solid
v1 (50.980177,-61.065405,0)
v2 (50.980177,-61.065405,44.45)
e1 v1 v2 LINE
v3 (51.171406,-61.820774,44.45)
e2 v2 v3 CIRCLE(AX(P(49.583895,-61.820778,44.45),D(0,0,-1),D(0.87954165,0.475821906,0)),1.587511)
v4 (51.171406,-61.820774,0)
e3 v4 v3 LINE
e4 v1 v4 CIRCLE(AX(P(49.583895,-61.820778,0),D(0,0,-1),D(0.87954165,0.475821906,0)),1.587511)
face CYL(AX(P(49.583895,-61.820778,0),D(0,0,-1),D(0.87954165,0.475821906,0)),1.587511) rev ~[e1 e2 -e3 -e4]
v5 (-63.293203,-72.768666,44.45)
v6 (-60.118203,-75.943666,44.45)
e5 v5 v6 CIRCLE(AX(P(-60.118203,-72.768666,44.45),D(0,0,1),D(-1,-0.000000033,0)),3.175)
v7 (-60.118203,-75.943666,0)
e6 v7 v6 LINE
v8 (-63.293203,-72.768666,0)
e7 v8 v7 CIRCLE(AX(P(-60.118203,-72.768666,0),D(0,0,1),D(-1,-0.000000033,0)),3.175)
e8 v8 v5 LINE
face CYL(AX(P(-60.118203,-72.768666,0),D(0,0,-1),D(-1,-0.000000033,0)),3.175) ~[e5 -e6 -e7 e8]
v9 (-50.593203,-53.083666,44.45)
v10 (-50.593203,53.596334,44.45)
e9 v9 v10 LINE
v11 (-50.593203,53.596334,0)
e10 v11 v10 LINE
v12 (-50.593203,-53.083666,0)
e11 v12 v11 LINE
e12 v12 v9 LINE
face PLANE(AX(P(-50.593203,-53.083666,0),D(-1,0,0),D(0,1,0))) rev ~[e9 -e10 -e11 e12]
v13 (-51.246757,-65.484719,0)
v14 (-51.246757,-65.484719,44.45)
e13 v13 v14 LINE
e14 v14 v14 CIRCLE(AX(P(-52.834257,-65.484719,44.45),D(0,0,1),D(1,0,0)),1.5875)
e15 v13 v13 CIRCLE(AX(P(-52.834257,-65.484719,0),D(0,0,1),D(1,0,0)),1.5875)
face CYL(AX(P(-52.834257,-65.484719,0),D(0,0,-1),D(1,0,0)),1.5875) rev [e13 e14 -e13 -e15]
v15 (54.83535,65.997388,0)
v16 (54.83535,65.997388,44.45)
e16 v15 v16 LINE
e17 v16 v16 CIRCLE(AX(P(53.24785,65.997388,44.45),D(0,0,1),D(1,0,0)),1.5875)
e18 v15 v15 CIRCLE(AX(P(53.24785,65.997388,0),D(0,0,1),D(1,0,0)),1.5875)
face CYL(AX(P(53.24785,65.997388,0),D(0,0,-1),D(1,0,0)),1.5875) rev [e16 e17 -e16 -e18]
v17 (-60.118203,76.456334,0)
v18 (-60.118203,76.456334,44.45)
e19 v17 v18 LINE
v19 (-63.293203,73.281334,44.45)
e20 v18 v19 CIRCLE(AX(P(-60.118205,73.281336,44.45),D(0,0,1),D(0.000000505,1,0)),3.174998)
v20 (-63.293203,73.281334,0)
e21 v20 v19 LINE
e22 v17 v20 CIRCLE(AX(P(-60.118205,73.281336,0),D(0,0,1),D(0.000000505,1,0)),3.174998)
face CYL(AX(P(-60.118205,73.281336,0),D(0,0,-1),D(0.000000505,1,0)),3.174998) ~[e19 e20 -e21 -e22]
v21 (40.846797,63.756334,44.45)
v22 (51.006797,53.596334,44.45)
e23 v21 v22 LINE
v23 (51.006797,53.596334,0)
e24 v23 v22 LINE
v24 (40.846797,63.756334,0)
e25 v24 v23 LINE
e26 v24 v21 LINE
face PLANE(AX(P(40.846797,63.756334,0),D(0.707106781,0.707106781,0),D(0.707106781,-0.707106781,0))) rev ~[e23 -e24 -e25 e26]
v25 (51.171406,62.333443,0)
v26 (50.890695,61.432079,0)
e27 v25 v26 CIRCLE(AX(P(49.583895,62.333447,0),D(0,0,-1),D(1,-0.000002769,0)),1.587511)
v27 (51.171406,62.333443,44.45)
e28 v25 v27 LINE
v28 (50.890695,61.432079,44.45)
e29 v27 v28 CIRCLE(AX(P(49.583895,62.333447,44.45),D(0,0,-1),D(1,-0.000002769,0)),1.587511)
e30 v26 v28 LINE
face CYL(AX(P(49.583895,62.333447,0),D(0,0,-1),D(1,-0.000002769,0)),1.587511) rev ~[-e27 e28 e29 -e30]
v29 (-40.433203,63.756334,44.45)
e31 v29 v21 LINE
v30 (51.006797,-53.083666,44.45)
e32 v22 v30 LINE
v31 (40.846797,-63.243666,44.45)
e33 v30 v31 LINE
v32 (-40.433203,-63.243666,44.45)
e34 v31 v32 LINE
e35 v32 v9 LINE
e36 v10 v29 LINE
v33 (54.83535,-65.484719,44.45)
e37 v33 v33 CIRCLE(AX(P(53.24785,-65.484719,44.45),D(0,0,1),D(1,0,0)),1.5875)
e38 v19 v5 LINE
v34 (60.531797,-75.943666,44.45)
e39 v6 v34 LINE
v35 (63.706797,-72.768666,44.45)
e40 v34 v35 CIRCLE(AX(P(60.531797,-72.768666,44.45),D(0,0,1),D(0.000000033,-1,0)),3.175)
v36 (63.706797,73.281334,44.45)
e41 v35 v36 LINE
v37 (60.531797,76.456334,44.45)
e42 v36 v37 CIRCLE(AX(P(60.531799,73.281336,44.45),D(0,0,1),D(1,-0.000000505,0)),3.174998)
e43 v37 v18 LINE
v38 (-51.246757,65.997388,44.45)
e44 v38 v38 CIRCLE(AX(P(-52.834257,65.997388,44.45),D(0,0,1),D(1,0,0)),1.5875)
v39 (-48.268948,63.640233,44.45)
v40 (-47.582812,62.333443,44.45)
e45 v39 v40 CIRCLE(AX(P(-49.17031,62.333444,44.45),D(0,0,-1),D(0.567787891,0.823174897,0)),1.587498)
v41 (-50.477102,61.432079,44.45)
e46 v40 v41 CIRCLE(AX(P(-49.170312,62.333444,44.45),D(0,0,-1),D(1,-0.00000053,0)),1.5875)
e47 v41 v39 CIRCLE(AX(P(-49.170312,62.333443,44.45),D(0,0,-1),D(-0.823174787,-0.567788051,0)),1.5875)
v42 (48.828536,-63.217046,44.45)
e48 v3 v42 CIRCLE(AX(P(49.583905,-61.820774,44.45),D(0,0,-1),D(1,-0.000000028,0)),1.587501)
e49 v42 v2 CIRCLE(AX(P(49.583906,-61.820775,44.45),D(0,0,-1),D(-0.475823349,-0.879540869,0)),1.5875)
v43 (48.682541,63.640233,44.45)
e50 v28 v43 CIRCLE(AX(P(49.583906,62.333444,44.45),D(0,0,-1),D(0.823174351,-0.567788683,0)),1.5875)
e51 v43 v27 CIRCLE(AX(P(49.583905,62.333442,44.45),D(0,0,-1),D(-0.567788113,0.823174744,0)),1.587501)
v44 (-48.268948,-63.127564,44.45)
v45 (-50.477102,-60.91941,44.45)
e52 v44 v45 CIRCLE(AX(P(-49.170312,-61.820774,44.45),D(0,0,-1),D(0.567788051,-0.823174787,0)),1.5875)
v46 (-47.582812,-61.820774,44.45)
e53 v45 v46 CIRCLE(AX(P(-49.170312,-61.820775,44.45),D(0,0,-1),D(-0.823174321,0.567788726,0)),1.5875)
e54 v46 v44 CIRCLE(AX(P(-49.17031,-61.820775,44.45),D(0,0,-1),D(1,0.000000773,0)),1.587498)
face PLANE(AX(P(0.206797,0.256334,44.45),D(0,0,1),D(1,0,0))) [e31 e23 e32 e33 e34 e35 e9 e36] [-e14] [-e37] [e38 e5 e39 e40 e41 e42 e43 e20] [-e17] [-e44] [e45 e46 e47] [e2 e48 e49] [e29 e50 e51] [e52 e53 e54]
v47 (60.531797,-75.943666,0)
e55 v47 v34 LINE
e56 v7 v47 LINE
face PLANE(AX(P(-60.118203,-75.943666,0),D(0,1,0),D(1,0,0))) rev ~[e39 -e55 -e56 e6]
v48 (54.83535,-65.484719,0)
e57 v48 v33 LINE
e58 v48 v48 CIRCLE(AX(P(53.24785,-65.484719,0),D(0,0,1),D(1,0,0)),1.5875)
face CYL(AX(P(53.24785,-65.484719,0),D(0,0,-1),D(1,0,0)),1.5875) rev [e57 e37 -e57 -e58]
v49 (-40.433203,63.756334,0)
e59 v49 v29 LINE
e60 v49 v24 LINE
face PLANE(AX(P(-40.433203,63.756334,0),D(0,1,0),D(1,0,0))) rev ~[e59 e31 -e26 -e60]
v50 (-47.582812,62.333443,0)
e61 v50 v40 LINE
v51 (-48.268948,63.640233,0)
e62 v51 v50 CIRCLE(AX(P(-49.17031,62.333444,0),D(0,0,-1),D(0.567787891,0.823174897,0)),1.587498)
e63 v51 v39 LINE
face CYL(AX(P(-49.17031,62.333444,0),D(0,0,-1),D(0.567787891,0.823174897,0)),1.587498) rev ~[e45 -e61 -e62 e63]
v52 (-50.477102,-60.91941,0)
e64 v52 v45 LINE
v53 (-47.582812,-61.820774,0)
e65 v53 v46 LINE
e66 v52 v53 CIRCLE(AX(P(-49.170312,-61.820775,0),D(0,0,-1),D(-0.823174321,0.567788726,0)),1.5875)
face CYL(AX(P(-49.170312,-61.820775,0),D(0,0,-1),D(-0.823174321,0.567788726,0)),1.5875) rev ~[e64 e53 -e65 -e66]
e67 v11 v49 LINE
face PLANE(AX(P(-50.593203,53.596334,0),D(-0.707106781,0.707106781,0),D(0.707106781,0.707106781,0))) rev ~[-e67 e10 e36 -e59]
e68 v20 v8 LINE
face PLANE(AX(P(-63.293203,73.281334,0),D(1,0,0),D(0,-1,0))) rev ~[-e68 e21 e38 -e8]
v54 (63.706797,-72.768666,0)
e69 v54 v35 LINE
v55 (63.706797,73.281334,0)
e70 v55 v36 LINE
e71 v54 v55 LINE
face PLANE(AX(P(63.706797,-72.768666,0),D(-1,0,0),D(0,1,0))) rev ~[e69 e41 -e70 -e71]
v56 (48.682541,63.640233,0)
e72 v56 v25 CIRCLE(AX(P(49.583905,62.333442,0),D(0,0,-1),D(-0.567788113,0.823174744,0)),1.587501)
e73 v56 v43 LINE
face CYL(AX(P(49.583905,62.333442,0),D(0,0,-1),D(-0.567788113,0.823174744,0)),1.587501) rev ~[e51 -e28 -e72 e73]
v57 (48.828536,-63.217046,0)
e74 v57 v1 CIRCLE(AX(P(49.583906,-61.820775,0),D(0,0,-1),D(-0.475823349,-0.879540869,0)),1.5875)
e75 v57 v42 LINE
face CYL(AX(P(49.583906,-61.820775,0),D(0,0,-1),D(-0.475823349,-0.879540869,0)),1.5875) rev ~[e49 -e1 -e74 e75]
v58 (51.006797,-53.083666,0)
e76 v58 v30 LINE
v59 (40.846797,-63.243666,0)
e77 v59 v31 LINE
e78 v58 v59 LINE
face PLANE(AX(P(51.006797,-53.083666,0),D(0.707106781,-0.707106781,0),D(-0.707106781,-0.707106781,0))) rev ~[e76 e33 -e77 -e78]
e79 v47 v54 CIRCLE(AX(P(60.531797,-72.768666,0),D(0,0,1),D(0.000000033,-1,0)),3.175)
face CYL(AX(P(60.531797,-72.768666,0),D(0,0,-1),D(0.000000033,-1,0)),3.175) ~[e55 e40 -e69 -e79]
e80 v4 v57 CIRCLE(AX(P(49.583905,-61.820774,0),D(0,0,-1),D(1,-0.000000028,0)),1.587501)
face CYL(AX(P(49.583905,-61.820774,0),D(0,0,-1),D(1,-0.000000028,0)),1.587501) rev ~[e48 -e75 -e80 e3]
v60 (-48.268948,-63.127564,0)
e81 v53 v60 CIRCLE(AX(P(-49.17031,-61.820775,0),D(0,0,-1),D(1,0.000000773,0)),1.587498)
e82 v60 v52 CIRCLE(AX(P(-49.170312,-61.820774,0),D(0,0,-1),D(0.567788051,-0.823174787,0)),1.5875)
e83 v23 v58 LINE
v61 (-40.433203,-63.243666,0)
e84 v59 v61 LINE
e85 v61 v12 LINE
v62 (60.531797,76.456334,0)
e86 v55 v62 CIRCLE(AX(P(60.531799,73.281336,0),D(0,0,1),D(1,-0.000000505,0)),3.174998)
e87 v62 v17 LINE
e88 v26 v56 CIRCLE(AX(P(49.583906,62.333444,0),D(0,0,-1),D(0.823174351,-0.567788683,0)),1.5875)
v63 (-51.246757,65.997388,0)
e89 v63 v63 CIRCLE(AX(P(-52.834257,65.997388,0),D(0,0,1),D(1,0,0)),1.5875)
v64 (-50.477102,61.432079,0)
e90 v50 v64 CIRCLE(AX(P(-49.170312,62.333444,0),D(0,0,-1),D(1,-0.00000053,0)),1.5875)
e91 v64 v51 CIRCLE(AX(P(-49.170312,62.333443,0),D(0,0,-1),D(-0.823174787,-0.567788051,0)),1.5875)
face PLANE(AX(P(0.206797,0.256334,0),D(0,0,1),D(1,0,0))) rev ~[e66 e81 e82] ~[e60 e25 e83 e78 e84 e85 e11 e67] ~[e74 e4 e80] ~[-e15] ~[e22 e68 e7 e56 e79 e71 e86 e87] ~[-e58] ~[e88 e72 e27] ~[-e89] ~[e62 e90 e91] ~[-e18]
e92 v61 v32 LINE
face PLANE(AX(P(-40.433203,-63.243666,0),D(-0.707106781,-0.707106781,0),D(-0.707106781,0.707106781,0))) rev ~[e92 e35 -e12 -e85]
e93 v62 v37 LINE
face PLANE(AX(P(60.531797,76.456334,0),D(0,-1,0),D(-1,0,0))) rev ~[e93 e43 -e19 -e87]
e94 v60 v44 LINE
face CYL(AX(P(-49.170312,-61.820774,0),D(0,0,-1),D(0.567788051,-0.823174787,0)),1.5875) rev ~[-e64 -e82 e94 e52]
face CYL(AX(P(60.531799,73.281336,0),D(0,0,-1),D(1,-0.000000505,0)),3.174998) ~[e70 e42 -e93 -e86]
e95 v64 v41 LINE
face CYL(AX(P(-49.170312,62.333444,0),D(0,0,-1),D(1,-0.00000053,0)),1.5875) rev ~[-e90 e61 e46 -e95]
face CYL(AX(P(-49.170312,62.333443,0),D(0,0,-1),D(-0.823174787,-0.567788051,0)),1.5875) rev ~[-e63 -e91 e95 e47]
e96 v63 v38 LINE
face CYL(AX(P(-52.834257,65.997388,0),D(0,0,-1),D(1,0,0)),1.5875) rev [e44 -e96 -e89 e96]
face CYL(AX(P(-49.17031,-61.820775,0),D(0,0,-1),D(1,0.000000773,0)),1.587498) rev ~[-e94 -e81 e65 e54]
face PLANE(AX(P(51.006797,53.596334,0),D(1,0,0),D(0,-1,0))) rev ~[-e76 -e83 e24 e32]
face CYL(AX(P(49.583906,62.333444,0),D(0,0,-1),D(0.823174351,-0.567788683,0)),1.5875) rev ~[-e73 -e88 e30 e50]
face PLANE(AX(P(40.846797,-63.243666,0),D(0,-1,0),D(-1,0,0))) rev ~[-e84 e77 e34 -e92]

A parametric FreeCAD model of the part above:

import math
import FreeCAD as App
import Part
import Sketcher
Q = App.Units.Quantity


def add_polygon(sketch, points):
    """Adds a closed chain of lines whose ends are joined by coincident constraints."""
    first, n = sketch.GeometryCount, len(points)
    for a, b in zip(points, points[1:] + points[:1]):
        sketch.addGeometry(Part.LineSegment(App.Vector(*a, 0), App.Vector(*b, 0)), False)
    for i in range(n):
        sketch.addConstraint(Sketcher.Constraint("Coincident", first + i, 2, first + (i + 1) % n, 1))

doc = App.newDocument("Part")
body = doc.addObject("PartDesign::Body", "Body")

sketch1 = body.newObject("Sketcher::SketchObject", "Sketch")
sketch1.AttachmentSupport = (doc.getObject("XY_Plane"), [""])
sketch1.MapMode = "FlatFace"
sketch1.addGeometry(Part.LineSegment(App.Vector(60.5, 76.5, 0), App.Vector(-60.1, 76.5, 0)), False)
sketch1.addGeometry(Part.ArcOfCircle(Part.Circle(App.Vector(-60.1, 73.3, 0), App.Vector(0, 0, 1), 3.2), math.radians(90), math.radians(180)), False)
sketch1.addGeometry(Part.LineSegment(App.Vector(-63.3, 73.3, 0), App.Vector(-63.3, -72.8, 0)), False)
sketch1.addGeometry(Part.ArcOfCircle(Part.Circle(App.Vector(-60.1, -72.8, 0), App.Vector(0, 0, 1), 3.2), math.radians(-180), math.radians(-90)), False)
sketch1.addGeometry(Part.LineSegment(App.Vector(-60.1, -75.9, 0), App.Vector(60.5, -75.9, 0)), False)
sketch1.addGeometry(Part.ArcOfCircle(Part.Circle(App.Vector(60.5, -72.8, 0), App.Vector(0, 0, 1), 3.2), math.radians(-90), math.radians(0)), False)
sketch1.addGeometry(Part.LineSegment(App.Vector(63.7, -72.8, 0), App.Vector(63.7, 73.3, 0)), False)
sketch1.addGeometry(Part.ArcOfCircle(Part.Circle(App.Vector(60.5, 73.3, 0), App.Vector(0, 0, 1), 3.2), math.radians(0), math.radians(90)), False)
sketch1.addGeometry(Part.Circle(App.Vector(-52.8, -65.5, 0), App.Vector(0, 0, 1), 1.6), False)
sketch1.addGeometry(Part.Circle(App.Vector(53.2, -65.5, 0), App.Vector(0, 0, 1), 1.6), False)
sketch1.addGeometry(Part.ArcOfCircle(Part.Circle(App.Vector(-49.2, 62.3, 0), App.Vector(0, 0, 1), 1.6), math.radians(55), math.radians(215)), False)
sketch1.addGeometry(Part.ArcOfCircle(Part.Circle(App.Vector(-49.2, 62.3, 0), App.Vector(0, 0, 1), 1.6), math.radians(0), math.radians(55)), False)
sketch1.addGeometry(Part.ArcOfCircle(Part.Circle(App.Vector(-49.2, 62.3, 0), App.Vector(0, 0, 1), 1.6), math.radians(-145), math.radians(0)), False)
add_polygon(sketch1, [(-50.6, -53.1), (-50.6, 53.6), (-40.4, 63.8), (40.8, 63.8), (51, 53.6), (51, -53.1), (40.8, -63.2), (-40.4, -63.2)])
sketch1.addGeometry(Part.ArcOfCircle(Part.Circle(App.Vector(-49.2, -61.8, 0), App.Vector(0, 0, 1), 1.6), math.radians(145), math.radians(305)), False)
sketch1.addGeometry(Part.ArcOfCircle(Part.Circle(App.Vector(-49.2, -61.8, 0), App.Vector(0, 0, 1), 1.6), math.radians(0), math.radians(145)), False)
sketch1.addGeometry(Part.ArcOfCircle(Part.Circle(App.Vector(-49.2, -61.8, 0), App.Vector(0, 0, 1), 1.6), math.radians(-55), math.radians(0)), False)
sketch1.addGeometry(Part.ArcOfCircle(Part.Circle(App.Vector(49.6, -61.8, 0), App.Vector(0, 0, 1), 1.6), math.radians(0), math.radians(28)), False)
sketch1.addGeometry(Part.ArcOfCircle(Part.Circle(App.Vector(49.6, -61.8, 0), App.Vector(0, 0, 1), 1.6), math.radians(-118), math.radians(0)), False)
sketch1.addGeometry(Part.ArcOfCircle(Part.Circle(App.Vector(49.6, -61.8, 0), App.Vector(0, 0, 1), 1.6), math.radians(28), math.radians(242)), False)
sketch1.addGeometry(Part.ArcOfCircle(Part.Circle(App.Vector(49.6, 62.3, 0), App.Vector(0, 0, 1), 1.6), math.radians(0), math.radians(125)), False)
sketch1.addGeometry(Part.ArcOfCircle(Part.Circle(App.Vector(49.6, 62.3, 0), App.Vector(0, 0, 1), 1.6), math.radians(-35), math.radians(0)), False)
sketch1.addGeometry(Part.ArcOfCircle(Part.Circle(App.Vector(49.6, 62.3, 0), App.Vector(0, 0, 1), 1.6), math.radians(125), math.radians(325)), False)
sketch1.addGeometry(Part.Circle(App.Vector(-52.8, 66, 0), App.Vector(0, 0, 1), 1.6), False)
sketch1.addGeometry(Part.Circle(App.Vector(53.2, 66, 0), App.Vector(0, 0, 1), 1.6), False)
sketch1.addConstraint(Sketcher.Constraint("Tangent", 0, 2, 1, 1))
sketch1.addConstraint(Sketcher.Constraint("Tangent", 1, 2, 2, 1))
sketch1.addConstraint(Sketcher.Constraint("Tangent", 2, 2, 3, 1))
sketch1.addConstraint(Sketcher.Constraint("Tangent", 3, 2, 4, 1))
sketch1.addConstraint(Sketcher.Constraint("Tangent", 4, 2, 5, 1))
sketch1.addConstraint(Sketcher.Constraint("Tangent", 5, 2, 6, 1))
sketch1.addConstraint(Sketcher.Constraint("Tangent", 6, 2, 7, 1))
sketch1.addConstraint(Sketcher.Constraint("Tangent", 7, 2, 0, 1))
sketch1.addConstraint(Sketcher.Constraint("Tangent", 10, 1, 11, 2))
sketch1.addConstraint(Sketcher.Constraint("Tangent", 11, 1, 12, 2))
sketch1.addConstraint(Sketcher.Constraint("Tangent", 12, 1, 10, 2))
sketch1.addConstraint(Sketcher.Constraint("Tangent", 21, 1, 22, 2))
sketch1.addConstraint(Sketcher.Constraint("Tangent", 22, 1, 23, 2))
sketch1.addConstraint(Sketcher.Constraint("Tangent", 23, 1, 21, 2))
sketch1.addConstraint(Sketcher.Constraint("Coincident", 24, 1, 25, 2))
sketch1.addConstraint(Sketcher.Constraint("Tangent", 25, 1, 26, 2))
sketch1.addConstraint(Sketcher.Constraint("Tangent", 26, 1, 24, 2))
sketch1.addConstraint(Sketcher.Constraint("Coincident", 27, 1, 28, 2))
sketch1.addConstraint(Sketcher.Constraint("Tangent", 28, 1, 29, 2))
sketch1.addConstraint(Sketcher.Constraint("Tangent", 29, 1, 27, 2))
sketch1.addConstraint(Sketcher.Constraint("Horizontal", 0))
sketch1.addConstraint(Sketcher.Constraint("Vertical", 2))
sketch1.addConstraint(Sketcher.Constraint("Horizontal", 4))
sketch1.addConstraint(Sketcher.Constraint("Vertical", 6))
sketch1.addConstraint(Sketcher.Constraint("Vertical", 13))
sketch1.addConstraint(Sketcher.Constraint("Horizontal", 15))
sketch1.addConstraint(Sketcher.Constraint("Vertical", 17))
sketch1.addConstraint(Sketcher.Constraint("Horizontal", 19))
sketch1.addConstraint(Sketcher.Constraint("Equal", 1, 3))
sketch1.addConstraint(Sketcher.Constraint("Equal", 3, 5))
sketch1.addConstraint(Sketcher.Constraint("Equal", 5, 7))
sketch1.addConstraint(Sketcher.Constraint("Equal", 8, 9))
sketch1.addConstraint(Sketcher.Constraint("Equal", 9, 10))
sketch1.addConstraint(Sketcher.Constraint("Equal", 12, 21))
sketch1.addConstraint(Sketcher.Constraint("Equal", 22, 25))
sketch1.addConstraint(Sketcher.Constraint("Equal", 25, 26))
sketch1.addConstraint(Sketcher.Constraint("Equal", 26, 27))
sketch1.addConstraint(Sketcher.Constraint("Equal", 24, 28))
sketch1.addConstraint(Sketcher.Constraint("Equal", 29, 30))
sketch1.addConstraint(Sketcher.Constraint("Equal", 30, 31))
sketch1.addConstraint(Sketcher.Constraint("Perpendicular", 14, 16))
sketch1.addConstraint(Sketcher.Constraint("Perpendicular", 16, 18))
sketch1.addConstraint(Sketcher.Constraint("Perpendicular", 18, 20))
sketch1.addConstraint(Sketcher.Constraint("Horizontal", 8, 3, 9, 3))
sketch1.addConstraint(Sketcher.Constraint("Horizontal", 23, 3, 25, 3))
sketch1.addConstraint(Sketcher.Constraint("Horizontal", 12, 3, 27, 3))
sketch1.addConstraint(Sketcher.Constraint("Horizontal", 30, 3, 31, 3))
sketch1.addConstraint(Sketcher.Constraint("Horizontal", 29, 3, 11, 1))
sketch1.addConstraint(Sketcher.Constraint("Horizontal", 13, 2, 16, 2))
sketch1.addConstraint(Sketcher.Constraint("Horizontal", 17, 2, 20, 2))
sketch1.addConstraint(Sketcher.Constraint("Horizontal", 26, 3, 22, 1))
sketch1.addConstraint(Sketcher.Constraint("Horizontal", 22, 1, 24, 1))
sketch1.addConstraint(Sketcher.Constraint("Horizontal", 11, 1, 27, 1))
sketch1.addConstraint(Sketcher.Constraint("Horizontal", 12, 1, 28, 1))
sketch1.addConstraint(Sketcher.Constraint("Horizontal", 10, 1, 29, 1))
sketch1.addConstraint(Sketcher.Constraint("Vertical", 12, 3, 21, 3))
sketch1.addConstraint(Sketcher.Constraint("Vertical", 26, 3, 27, 3))
sketch1.addConstraint(Sketcher.Constraint("Vertical", 8, 3, 30, 3))
sketch1.addConstraint(Sketcher.Constraint("Vertical", 9, 3, 31, 3))
sketch1.addConstraint(Sketcher.Constraint("Vertical", 15, 2, 18, 2))
sketch1.addConstraint(Sketcher.Constraint("Vertical", 14, 2, 19, 2))
sketch1.addConstraint(Sketcher.Constraint("Vertical", 12, 1, 21, 1))
sketch1.addConstraint(Sketcher.Constraint("Vertical", 10, 1, 23, 1))
sketch1.addConstraint(Sketcher.Constraint("Diameter", 8, Q("0.125 in")))
sketch1.addConstraint(Sketcher.Constraint("DistanceX", 15, 1, 15, 2, Q("3.2 in")))
sketch1.addConstraint(Sketcher.Constraint("DistanceY", 13, 1, 13, 2, Q("4.2 in")))
sketch1.addConstraint(Sketcher.Constraint("Radius", 1, Q("0.1249999 in")))
sketch1.addConstraint(Sketcher.Constraint("DistanceX", 0, 2, 0, 1, Q("4.75 in")))
sketch1.addConstraint(Sketcher.Constraint("DistanceY", 2, 2, 2, 1, Q("5.75 in")))
sketch1.addConstraint(Sketcher.Constraint("DistanceX", 15, 2, 16, 2, Q("0.4 in")))
sketch1.addConstraint(Sketcher.Constraint("DistanceX", 15, 2, 7, 3, Q("0.7750001 in")))
sketch1.addConstraint(Sketcher.Constraint("DistanceY", 15, 2, 7, 3, Q("0.3750001 in")))
sketch1.addConstraint(Sketcher.Constraint("DistanceX", -1, 1, 7, 3, Q("60.531799 mm")))
sketch1.addConstraint(Sketcher.Constraint("DistanceX", 21, 1, -1, 1, Q("50.477102 mm")))
sketch1.addConstraint(Sketcher.Constraint("DistanceY", 10, 1, 14, 2, Q("0.116101 mm")))
sketch1.addConstraint(Sketcher.Constraint("DistanceX", 28, 3, 28, 1, Q("1.3068 mm")))
sketch1.addConstraint(Sketcher.Constraint("DistanceY", 8, 3, -1, 1, Q("65.484719 mm")))
sketch1.addConstraint(Sketcher.Constraint("DistanceX", -1, 1, 9, 3, Q("53.24785 mm")))
sketch1.addConstraint(Sketcher.Constraint("DistanceY", -1, 1, 30, 3, Q("65.997388 mm")))
sketch1.addConstraint(Sketcher.Constraint("DistanceX", 10, 1, -1, 1, Q("48.268948 mm")))
sketch1.addConstraint(Sketcher.Constraint("DistanceY", -1, 1, 12, 1, Q("61.432079 mm")))
sketch1.addConstraint(Sketcher.Constraint("DistanceY", 21, 1, -1, 1, Q("60.91941 mm")))
sketch1.addConstraint(Sketcher.Constraint("DistanceX", -1, 1, 29, 1, Q("48.682541 mm")))
sketch1.addConstraint(Sketcher.Constraint("DistanceX", 30, 3, 28, 3, Q("102.418152 mm")))
sketch1.addConstraint(Sketcher.Constraint("DistanceX", 25, 1, 24, 3, Q("0.755359 mm")))
sketch1.addConstraint(Sketcher.Constraint("DistanceX", 26, 1, 24, 1, Q("0.191229 mm")))
pad1 = body.newObject("PartDesign::Pad", "Pad")
pad1.Profile = sketch1
pad1.Length = Q("1.75 in")

doc.recompute()
